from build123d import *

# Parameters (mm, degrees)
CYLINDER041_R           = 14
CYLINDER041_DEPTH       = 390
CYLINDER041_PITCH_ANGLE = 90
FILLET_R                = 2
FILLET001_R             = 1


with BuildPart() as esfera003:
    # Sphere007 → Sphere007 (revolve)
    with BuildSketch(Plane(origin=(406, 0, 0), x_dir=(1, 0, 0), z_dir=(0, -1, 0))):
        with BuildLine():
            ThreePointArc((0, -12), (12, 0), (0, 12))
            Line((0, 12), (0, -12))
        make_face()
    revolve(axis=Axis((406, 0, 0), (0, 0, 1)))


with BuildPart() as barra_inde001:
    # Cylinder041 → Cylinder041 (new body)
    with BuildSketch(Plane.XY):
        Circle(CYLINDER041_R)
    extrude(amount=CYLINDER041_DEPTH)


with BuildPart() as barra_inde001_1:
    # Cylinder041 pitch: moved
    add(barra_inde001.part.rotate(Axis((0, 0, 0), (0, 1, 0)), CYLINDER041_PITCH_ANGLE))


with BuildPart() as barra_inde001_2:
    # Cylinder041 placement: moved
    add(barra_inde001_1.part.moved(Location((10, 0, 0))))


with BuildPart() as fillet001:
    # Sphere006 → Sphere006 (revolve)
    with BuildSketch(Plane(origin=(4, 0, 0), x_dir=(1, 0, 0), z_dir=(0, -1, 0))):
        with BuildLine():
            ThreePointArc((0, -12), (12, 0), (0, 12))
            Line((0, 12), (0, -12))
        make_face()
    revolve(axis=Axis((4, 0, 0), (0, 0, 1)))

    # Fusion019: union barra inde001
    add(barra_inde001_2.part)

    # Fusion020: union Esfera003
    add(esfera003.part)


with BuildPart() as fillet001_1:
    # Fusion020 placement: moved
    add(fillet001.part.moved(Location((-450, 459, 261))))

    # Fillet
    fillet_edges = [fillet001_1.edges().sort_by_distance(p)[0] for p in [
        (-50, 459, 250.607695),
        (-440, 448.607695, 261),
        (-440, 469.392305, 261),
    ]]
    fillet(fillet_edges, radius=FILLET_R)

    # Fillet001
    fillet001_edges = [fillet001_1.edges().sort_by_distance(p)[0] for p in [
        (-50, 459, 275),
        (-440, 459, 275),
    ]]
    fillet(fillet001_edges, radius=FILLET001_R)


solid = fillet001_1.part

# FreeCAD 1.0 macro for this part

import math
import FreeCAD as App
import Part
import Sketcher

V = App.Vector


def edges_at(feature, points):
    """Names of the edges that pass closest to the given points."""
    edges = feature.Shape.Edges
    near = lambda p: min(range(len(edges)), key=lambda i: edges[i].distToShape(Part.Vertex(*p))[0])
    return sorted({f"Edge{near(p) + 1}" for p in points})

doc = App.newDocument("Part")
body = doc.addObject("PartDesign::Body", "Body")

sketch1 = doc.addObject("Sketcher::SketchObject", "Sketch")
body.addObject(sketch1)
sketch1.AttachmentSupport = (doc.XZ_Plane, [""])
sketch1.MapMode = "FlatFace"
sketch1.addGeometry([
    Part.ArcOfCircle(Part.Circle(V(406, 0, 0), V(0, 0, 1), 12), math.radians(-90), math.radians(90)),
    Part.LineSegment(V(406, 12, 0), V(406, -12, 0)),
], False)
sketch1.addGeometry(Part.LineSegment(V(406, -12, 0), V(406, 12, 0)), True)
sketch1.addConstraint([
    Sketcher.Constraint("Coincident", 0, 1, 1, 2),
    Sketcher.Constraint("Coincident", 1, 1, 0, 2),
    Sketcher.Constraint("Vertical", 1),
    Sketcher.Constraint("Vertical", 2),
    Sketcher.Constraint("Coincident", 2, 1, 0, 1),
    Sketcher.Constraint("PointOnObject", 0, 3, -1),
    Sketcher.Constraint("Equal", 1, 2),
    Sketcher.Constraint("Radius", 0, 12.0),
    Sketcher.Constraint("DistanceX", -1, 1, 0, 3, 406.0),
    Sketcher.Constraint("DistanceX", -1, 1, 0, 1, 406.0),
])
revolution = doc.addObject("PartDesign::Revolution", "Revolution")
body.addObject(revolution)
revolution.Profile = sketch1
revolution.ReferenceAxis = (sketch1, ["Axis0"])
revolution.Angle = 360
body2 = doc.addObject("PartDesign::Body", "Body001")

sketch2 = doc.addObject("Sketcher::SketchObject", "Sketch001")
body2.addObject(sketch2)
sketch2.AttachmentSupport = (doc.getObject("XY_Plane001"), [""])
sketch2.MapMode = "FlatFace"
sketch2.addGeometry(Part.Circle(V(0, 0, 0), V(0, 0, 1), 14), False)
sketch2.addConstraint([
    Sketcher.Constraint("Coincident", 0, 3, -1, 1),
    Sketcher.Constraint("Diameter", 0, 28.0),
])
pad1 = doc.addObject("PartDesign::Pad", "Pad")
body2.addObject(pad1)
pad1.Profile = sketch2
pad1.Length = 390
body3 = doc.addObject("PartDesign::Body", "Body002")
doc.recompute()

body2.Placement = App.Placement(V(0, 0, 0), App.Rotation(V(0, 1, 0), 90))
boolean = doc.addObject("PartDesign::Boolean", "Boolean")
body3.addObject(boolean)
boolean.Type = "Fuse"
boolean.addObjects([body2])
body4 = doc.addObject("PartDesign::Body", "Body003")
doc.recompute()

body3.Placement = App.Placement(V(10, 0, 0), App.Rotation(V(0, 0, 1), 0))
boolean2 = doc.addObject("PartDesign::Boolean", "Boolean001")
body4.addObject(boolean2)
boolean2.Type = "Fuse"
boolean2.addObjects([body3])
body5 = doc.addObject("PartDesign::Body", "Body004")

sketch3 = doc.addObject("Sketcher::SketchObject", "Sketch002")
body5.addObject(sketch3)
sketch3.AttachmentSupport = (doc.getObject("XZ_Plane004"), [""])
sketch3.MapMode = "FlatFace"
sketch3.addGeometry([
    Part.ArcOfCircle(Part.Circle(V(4, 0, 0), V(0, 0, 1), 12), math.radians(-90), math.radians(90)),
    Part.LineSegment(V(4, 12, 0), V(4, -12, 0)),
], False)
sketch3.addGeometry(Part.LineSegment(V(4, -12, 0), V(4, 12, 0)), True)
sketch3.addConstraint([
    Sketcher.Constraint("Coincident", 0, 1, 1, 2),
    Sketcher.Constraint("Coincident", 1, 1, 0, 2),
    Sketcher.Constraint("Vertical", 1),
    Sketcher.Constraint("Vertical", 2),
    Sketcher.Constraint("Coincident", 2, 1, 0, 1),
    Sketcher.Constraint("PointOnObject", 0, 3, -1),
    Sketcher.Constraint("Equal", 1, 2),
    Sketcher.Constraint("Radius", 0, 12.0),
    Sketcher.Constraint("DistanceX", -1, 1, 0, 3, 4.0),
    Sketcher.Constraint("DistanceX", -1, 1, 0, 1, 4.0),
])
revolution2 = doc.addObject("PartDesign::Revolution", "Revolution001")
body5.addObject(revolution2)
revolution2.Profile = sketch3
revolution2.ReferenceAxis = (sketch3, ["Axis0"])
revolution2.Angle = 360
doc.recompute()

boolean3 = doc.addObject("PartDesign::Boolean", "Boolean002")
body5.addObject(boolean3)
boolean3.Type = "Fuse"
boolean3.addObjects([body4])
doc.recompute()

boolean4 = doc.addObject("PartDesign::Boolean", "Boolean003")
body5.addObject(boolean4)
boolean4.Type = "Fuse"
boolean4.addObjects([body])
body6 = doc.addObject("PartDesign::Body", "Body005")
doc.recompute()

body5.Placement = App.Placement(V(-450, 459, 261), App.Rotation(V(0, 0, 1), 0))
boolean5 = doc.addObject("PartDesign::Boolean", "Boolean004")
body6.addObject(boolean5)
boolean5.Type = "Fuse"
boolean5.addObjects([body5])
doc.recompute()

fillet = doc.addObject("PartDesign::Fillet", "Fillet")
body6.addObject(fillet)
fillet.Base = (boolean5, edges_at(boolean5, [(-50, 459, 250.608), (-440, 448.608, 261), (-440, 469.392, 261)]))
fillet.Radius = 2
doc.recompute()

fillet2 = doc.addObject("PartDesign::Fillet", "Fillet001")
body6.addObject(fillet2)
fillet2.Base = (fillet, edges_at(fillet, [(-50, 459, 275), (-440, 459, 275)]))
fillet2.Radius = 1

doc.recompute()
